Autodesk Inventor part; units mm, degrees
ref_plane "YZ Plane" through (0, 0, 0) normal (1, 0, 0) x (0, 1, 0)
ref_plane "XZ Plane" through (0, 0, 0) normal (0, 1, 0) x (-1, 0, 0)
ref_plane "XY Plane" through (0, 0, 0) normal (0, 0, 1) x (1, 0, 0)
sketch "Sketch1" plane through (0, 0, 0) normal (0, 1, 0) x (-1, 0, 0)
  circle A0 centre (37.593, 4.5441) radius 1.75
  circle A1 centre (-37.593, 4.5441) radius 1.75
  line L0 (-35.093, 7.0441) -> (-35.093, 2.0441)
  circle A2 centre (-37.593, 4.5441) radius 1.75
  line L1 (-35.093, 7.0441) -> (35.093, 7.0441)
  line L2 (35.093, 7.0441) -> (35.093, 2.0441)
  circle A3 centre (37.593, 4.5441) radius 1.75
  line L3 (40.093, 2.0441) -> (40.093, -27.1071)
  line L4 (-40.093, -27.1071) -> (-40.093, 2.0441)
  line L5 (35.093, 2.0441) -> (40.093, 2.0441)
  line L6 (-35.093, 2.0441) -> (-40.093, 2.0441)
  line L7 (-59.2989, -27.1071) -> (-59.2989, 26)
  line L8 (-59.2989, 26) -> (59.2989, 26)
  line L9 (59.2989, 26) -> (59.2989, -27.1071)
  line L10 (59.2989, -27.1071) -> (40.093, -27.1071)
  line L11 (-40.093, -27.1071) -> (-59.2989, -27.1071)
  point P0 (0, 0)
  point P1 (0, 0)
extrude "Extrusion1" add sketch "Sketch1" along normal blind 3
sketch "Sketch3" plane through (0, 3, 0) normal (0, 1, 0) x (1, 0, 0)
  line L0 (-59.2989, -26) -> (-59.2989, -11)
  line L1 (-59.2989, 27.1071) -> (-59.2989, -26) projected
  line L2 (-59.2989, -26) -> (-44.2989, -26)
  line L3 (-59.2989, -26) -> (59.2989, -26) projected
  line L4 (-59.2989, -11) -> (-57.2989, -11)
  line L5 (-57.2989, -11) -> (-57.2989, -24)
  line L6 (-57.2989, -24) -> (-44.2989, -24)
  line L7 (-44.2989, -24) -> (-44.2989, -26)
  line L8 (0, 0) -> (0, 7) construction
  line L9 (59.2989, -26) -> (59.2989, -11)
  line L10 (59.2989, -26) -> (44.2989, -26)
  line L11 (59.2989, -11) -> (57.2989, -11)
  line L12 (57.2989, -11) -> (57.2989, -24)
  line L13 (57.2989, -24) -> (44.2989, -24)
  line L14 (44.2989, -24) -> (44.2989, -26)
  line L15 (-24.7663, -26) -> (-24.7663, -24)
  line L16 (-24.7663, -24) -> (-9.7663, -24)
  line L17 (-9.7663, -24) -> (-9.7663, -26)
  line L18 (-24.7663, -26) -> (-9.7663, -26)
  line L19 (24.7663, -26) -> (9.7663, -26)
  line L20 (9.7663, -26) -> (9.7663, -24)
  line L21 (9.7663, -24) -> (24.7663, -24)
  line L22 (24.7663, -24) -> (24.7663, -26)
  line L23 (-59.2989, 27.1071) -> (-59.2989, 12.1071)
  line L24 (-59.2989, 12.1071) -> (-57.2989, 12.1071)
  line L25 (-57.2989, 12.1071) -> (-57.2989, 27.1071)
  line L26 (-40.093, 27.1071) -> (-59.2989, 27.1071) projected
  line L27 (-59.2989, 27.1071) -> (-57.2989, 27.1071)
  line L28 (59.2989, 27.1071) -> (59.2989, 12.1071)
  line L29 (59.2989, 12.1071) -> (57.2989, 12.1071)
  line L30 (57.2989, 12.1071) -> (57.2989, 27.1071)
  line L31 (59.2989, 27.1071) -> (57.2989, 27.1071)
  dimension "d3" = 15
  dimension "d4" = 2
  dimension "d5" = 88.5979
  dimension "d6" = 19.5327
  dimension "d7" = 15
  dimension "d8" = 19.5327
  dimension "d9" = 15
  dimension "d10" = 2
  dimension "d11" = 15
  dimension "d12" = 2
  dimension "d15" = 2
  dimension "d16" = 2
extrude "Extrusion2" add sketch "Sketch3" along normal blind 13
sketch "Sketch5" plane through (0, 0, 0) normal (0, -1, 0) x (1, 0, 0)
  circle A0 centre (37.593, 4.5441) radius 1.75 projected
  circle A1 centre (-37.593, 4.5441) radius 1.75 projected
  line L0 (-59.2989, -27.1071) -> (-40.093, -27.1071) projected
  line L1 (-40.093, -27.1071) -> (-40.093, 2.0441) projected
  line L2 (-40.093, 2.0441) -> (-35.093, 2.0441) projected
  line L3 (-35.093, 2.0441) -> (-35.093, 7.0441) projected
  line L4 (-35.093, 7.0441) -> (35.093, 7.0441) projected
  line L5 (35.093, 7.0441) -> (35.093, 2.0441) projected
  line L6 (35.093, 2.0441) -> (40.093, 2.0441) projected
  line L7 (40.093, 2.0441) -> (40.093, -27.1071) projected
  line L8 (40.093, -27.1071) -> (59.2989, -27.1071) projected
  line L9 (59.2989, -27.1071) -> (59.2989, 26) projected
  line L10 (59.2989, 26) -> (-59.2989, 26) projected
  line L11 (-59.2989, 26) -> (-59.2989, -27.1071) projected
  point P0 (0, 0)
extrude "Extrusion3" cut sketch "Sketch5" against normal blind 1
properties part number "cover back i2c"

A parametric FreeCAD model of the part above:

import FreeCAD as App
import Part
import Sketcher

V = App.Vector
Q = App.Units.Quantity


def add_polygon(sketch, points):
    """Adds a closed chain of lines whose ends are joined by coincident constraints."""
    first, n = sketch.GeometryCount, len(points)
    for a, b in zip(points, points[1:] + points[:1]):
        sketch.addGeometry(Part.LineSegment(App.Vector(*a, 0), App.Vector(*b, 0)), False)
    for i in range(n):
        sketch.addConstraint(Sketcher.Constraint("Coincident", first + i, 2, first + (i + 1) % n, 1))

doc = App.newDocument("Part")
body = doc.addObject("PartDesign::Body", "Body")

# Sketch on XZ plane
sketch1 = body.newObject("Sketcher::SketchObject", "Sketch")
sketch1.AttachmentSupport = (doc.getObject("XZ_Plane"), [""])
sketch1.MapMode = "FlatFace"
add_polygon(sketch1, [(35.1, 2), (35.1, 7), (-35.1, 7), (-35.1, 2), (-40.1, 2), (-40.1, -27.1), (-59.3, -27.1), (-59.3, 26), (59.3, 26), (59.3, -27.1), (40.1, -27.1), (40.1, 2)])  # lines 0-11
sketch1.addGeometry(Part.Circle(V(37.6, 4.5, 0), V(0, 0, 1), 1.8), False)  # 12
sketch1.addGeometry(Part.Circle(V(-37.6, 4.5, 0), V(0, 0, 1), 1.8), False)  # 13
sketch1.addConstraint(Sketcher.Constraint("Vertical", 0))
sketch1.addConstraint(Sketcher.Constraint("Horizontal", 1))
sketch1.addConstraint(Sketcher.Constraint("Vertical", 2))
sketch1.addConstraint(Sketcher.Constraint("Horizontal", 3))
sketch1.addConstraint(Sketcher.Constraint("Vertical", 4))
sketch1.addConstraint(Sketcher.Constraint("Horizontal", 5))
sketch1.addConstraint(Sketcher.Constraint("Vertical", 6))
sketch1.addConstraint(Sketcher.Constraint("Horizontal", 7))
sketch1.addConstraint(Sketcher.Constraint("Vertical", 8))
sketch1.addConstraint(Sketcher.Constraint("Horizontal", 9))
sketch1.addConstraint(Sketcher.Constraint("Vertical", 10))
sketch1.addConstraint(Sketcher.Constraint("Horizontal", 11))
sketch1.addConstraint(Sketcher.Constraint("Equal", 12, 13))
sketch1.addConstraint(Sketcher.Constraint("Symmetric", 12, 3, 13, 3, -2))
sketch1.addConstraint(Sketcher.Constraint("Symmetric", 5, 2, 8, 2, -2))
sketch1.addConstraint(Sketcher.Constraint("Symmetric", 3, 2, 10, 2, -2))
sketch1.addConstraint(Sketcher.Constraint("Equal", 3, 11))
sketch1.addConstraint(Sketcher.Constraint("Equal", 11, 0))
sketch1.addConstraint(Sketcher.Constraint("Diameter", 12, Q("3.5 mm")))
sketch1.addConstraint(Sketcher.Constraint("DistanceX", 3, 2, 3, 1, Q("5 mm")))
sketch1.addConstraint(Sketcher.Constraint("DistanceY", -1, 1, 6, 2, Q("26 mm")))
sketch1.addConstraint(Sketcher.Constraint("DistanceX", 0, 2, 12, 3, Q("2.5 mm")))
sketch1.addConstraint(Sketcher.Constraint("DistanceY", 12, 3, 0, 2, Q("2.5 mm")))
sketch1.addConstraint(Sketcher.Constraint("DistanceX", 1, 2, 1, 1, Q("70.186 mm")))
sketch1.addConstraint(Sketcher.Constraint("DistanceX", 5, 2, 5, 1, Q("19.206 mm")))
sketch1.addConstraint(Sketcher.Constraint("DistanceY", 6, 1, 6, 2, Q("53.107 mm")))
sketch1.addConstraint(Sketcher.Constraint("DistanceY", 4, 2, 4, 1, Q("29.1512 mm")))
pad1 = body.newObject("PartDesign::Pad", "Pad")
pad1.Profile = sketch1
pad1.Length = 3
pad1.Reversed = True

# Sketch on XZ plane
sketch2 = body.newObject("Sketcher::SketchObject", "Sketch001")
sketch2.AttachmentSupport = (doc.getObject("XZ_Plane"), [""])
sketch2.MapMode = "FlatFace"
sketch2.AttachmentOffset = App.Placement(V(0, 0, -3), App.Rotation())
add_polygon(sketch2, [(-59.3, -27.1), (-59.3, -12.1), (-57.3, -12.1), (-57.3, -27.1)])  # lines 0-3
add_polygon(sketch2, [(44.3, 24), (44.3, 26), (59.3, 26), (59.3, 11), (57.3, 11), (57.3, 24)])  # lines 4-9
add_polygon(sketch2, [(9.8, 24), (9.8, 26), (24.8, 26), (24.8, 24)])  # lines 10-13
add_polygon(sketch2, [(-24.8, 24), (-24.8, 26), (-9.8, 26), (-9.8, 24)])  # lines 14-17
add_polygon(sketch2, [(-59.3, 11), (-59.3, 26), (-44.3, 26), (-44.3, 24), (-57.3, 24), (-57.3, 11)])  # lines 18-23
add_polygon(sketch2, [(59.3, -12.1), (59.3, -27.1), (57.3, -27.1), (57.3, -12.1)])  # lines 24-27
sketch2.addConstraint(Sketcher.Constraint("Vertical", 0))
sketch2.addConstraint(Sketcher.Constraint("Horizontal", 1))
sketch2.addConstraint(Sketcher.Constraint("Vertical", 2))
sketch2.addConstraint(Sketcher.Constraint("Horizontal", 3))
sketch2.addConstraint(Sketcher.Constraint("Vertical", 4))
sketch2.addConstraint(Sketcher.Constraint("Horizontal", 5))
sketch2.addConstraint(Sketcher.Constraint("Vertical", 6))
sketch2.addConstraint(Sketcher.Constraint("Horizontal", 7))
sketch2.addConstraint(Sketcher.Constraint("Vertical", 8))
sketch2.addConstraint(Sketcher.Constraint("Horizontal", 9))
sketch2.addConstraint(Sketcher.Constraint("Vertical", 10))
sketch2.addConstraint(Sketcher.Constraint("Horizontal", 11))
sketch2.addConstraint(Sketcher.Constraint("Vertical", 12))
sketch2.addConstraint(Sketcher.Constraint("Horizontal", 13))
sketch2.addConstraint(Sketcher.Constraint("Vertical", 14))
sketch2.addConstraint(Sketcher.Constraint("Horizontal", 15))
sketch2.addConstraint(Sketcher.Constraint("Vertical", 16))
sketch2.addConstraint(Sketcher.Constraint("Horizontal", 17))
sketch2.addConstraint(Sketcher.Constraint("Vertical", 18))
sketch2.addConstraint(Sketcher.Constraint("Horizontal", 19))
sketch2.addConstraint(Sketcher.Constraint("Vertical", 20))
sketch2.addConstraint(Sketcher.Constraint("Horizontal", 21))
sketch2.addConstraint(Sketcher.Constraint("Vertical", 22))
sketch2.addConstraint(Sketcher.Constraint("Horizontal", 23))
sketch2.addConstraint(Sketcher.Constraint("Vertical", 24))
sketch2.addConstraint(Sketcher.Constraint("Horizontal", 25))
sketch2.addConstraint(Sketcher.Constraint("Vertical", 26))
sketch2.addConstraint(Sketcher.Constraint("Horizontal", 27))
sketch2.addConstraint(Sketcher.Constraint("Symmetric", 11, 2, 14, 2, -2))
sketch2.addConstraint(Sketcher.Constraint("Symmetric", 13, 2, 16, 2, -2))
sketch2.addConstraint(Sketcher.Constraint("Symmetric", 5, 2, 18, 2, -2))
sketch2.addConstraint(Sketcher.Constraint("Symmetric", 9, 2, 20, 2, -2))
sketch2.addConstraint(Sketcher.Constraint("Symmetric", 7, 2, 22, 2, -2))
sketch2.addConstraint(Sketcher.Constraint("Symmetric", 3, 2, 24, 2, -2))
sketch2.addConstraint(Sketcher.Constraint("Symmetric", 1, 2, 26, 2, -2))
sketch2.addConstraint(Sketcher.Constraint("Horizontal", 5, 2, 10, 2))
sketch2.addConstraint(Sketcher.Constraint("Horizontal", 9, 2, 12, 2))
sketch2.addConstraint(Sketcher.Constraint("Vertical", 3, 2, 18, 2))
sketch2.addConstraint(Sketcher.Constraint("Vertical", 2, 2, 21, 2))
sketch2.addConstraint(Sketcher.Constraint("Equal", 5, 11))
sketch2.addConstraint(Sketcher.Constraint("Equal", 19, 0))
sketch2.addConstraint(Sketcher.Constraint("Equal", 27, 4))
sketch2.addConstraint(Sketcher.Constraint("Equal", 2, 6))
sketch2.addConstraint(Sketcher.Constraint("DistanceX", 1, 1, 1, 2, Q("2 mm")))
sketch2.addConstraint(Sketcher.Constraint("DistanceX", 5, 1, 5, 2, Q("15 mm")))
sketch2.addConstraint(Sketcher.Constraint("DistanceY", -1, 1, 4, 2, Q("26 mm")))
sketch2.addConstraint(Sketcher.Constraint("DistanceX", 11, 2, 4, 2, Q("19.5326 mm")))
sketch2.addConstraint(Sketcher.Constraint("DistanceX", 15, 2, 10, 2, Q("19.5326 mm")))
sketch2.addConstraint(Sketcher.Constraint("DistanceY", 0, 2, -1, 1, Q("12.107 mm")))
pad2 = body.newObject("PartDesign::Pad", "Pad001")
pad2.Profile = sketch2
pad2.Length = 13
pad2.Reversed = True

# Sketch on XZ plane
sketch3 = body.newObject("Sketcher::SketchObject", "Sketch002")
sketch3.AttachmentSupport = (doc.getObject("XZ_Plane"), [""])
sketch3.MapMode = "FlatFace"
add_polygon(sketch3, [(-59.3, 26), (-59.3, -27.1), (-40.1, -27.1), (-40.1, 2), (-35.1, 2), (-35.1, 7), (35.1, 7), (35.1, 2), (40.1, 2), (40.1, -27.1), (59.3, -27.1), (59.3, 26)])  # lines 0-11
sketch3.addGeometry(Part.Circle(V(-37.6, 4.5, 0), V(0, 0, 1), 1.8), False)  # 12
sketch3.addGeometry(Part.Circle(V(37.6, 4.5, 0), V(0, 0, 1), 1.8), False)  # 13
sketch3.addConstraint(Sketcher.Constraint("Vertical", 0))
sketch3.addConstraint(Sketcher.Constraint("Horizontal", 1))
sketch3.addConstraint(Sketcher.Constraint("Vertical", 2))
sketch3.addConstraint(Sketcher.Constraint("Horizontal", 3))
sketch3.addConstraint(Sketcher.Constraint("Vertical", 4))
sketch3.addConstraint(Sketcher.Constraint("Horizontal", 5))
sketch3.addConstraint(Sketcher.Constraint("Vertical", 6))
sketch3.addConstraint(Sketcher.Constraint("Horizontal", 7))
sketch3.addConstraint(Sketcher.Constraint("Vertical", 8))
sketch3.addConstraint(Sketcher.Constraint("Horizontal", 9))
sketch3.addConstraint(Sketcher.Constraint("Vertical", 10))
sketch3.addConstraint(Sketcher.Constraint("Horizontal", 11))
sketch3.addConstraint(Sketcher.Constraint("Equal", 12, 13))
sketch3.addConstraint(Sketcher.Constraint("Symmetric", 12, 3, 13, 3, -2))
sketch3.addConstraint(Sketcher.Constraint("Symmetric", 3, 2, 6, 2, -2))
sketch3.addConstraint(Sketcher.Constraint("Symmetric", 1, 2, 8, 2, -2))
sketch3.addConstraint(Sketcher.Constraint("Equal", 1, 9))
sketch3.addConstraint(Sketcher.Constraint("Equal", 7, 4))
sketch3.addConstraint(Sketcher.Constraint("Diameter", 12, Q("3.5 mm")))
sketch3.addConstraint(Sketcher.Constraint("DistanceX", 3, 1, 3, 2, Q("5 mm")))
sketch3.addConstraint(Sketcher.Constraint("DistanceY", -1, 1, 10, 2, Q("26 mm")))
sketch3.addConstraint(Sketcher.Constraint("DistanceX", 1, 2, 12, 3, Q("2.5 mm")))
sketch3.addConstraint(Sketcher.Constraint("DistanceY", 2, 2, 12, 3, Q("2.5 mm")))
sketch3.addConstraint(Sketcher.Constraint("DistanceX", 1, 1, 1, 2, Q("19.206 mm")))
sketch3.addConstraint(Sketcher.Constraint("DistanceX", 5, 1, 5, 2, Q("70.186 mm")))
sketch3.addConstraint(Sketcher.Constraint("DistanceY", 0, 2, 0, 1, Q("53.107 mm")))
sketch3.addConstraint(Sketcher.Constraint("DistanceY", 2, 1, 2, 2, Q("29.1512 mm")))
pocket1 = body.newObject("PartDesign::Pocket", "Pocket")
pocket1.Profile = sketch3
pocket1.Length = 1

doc.recompute()
